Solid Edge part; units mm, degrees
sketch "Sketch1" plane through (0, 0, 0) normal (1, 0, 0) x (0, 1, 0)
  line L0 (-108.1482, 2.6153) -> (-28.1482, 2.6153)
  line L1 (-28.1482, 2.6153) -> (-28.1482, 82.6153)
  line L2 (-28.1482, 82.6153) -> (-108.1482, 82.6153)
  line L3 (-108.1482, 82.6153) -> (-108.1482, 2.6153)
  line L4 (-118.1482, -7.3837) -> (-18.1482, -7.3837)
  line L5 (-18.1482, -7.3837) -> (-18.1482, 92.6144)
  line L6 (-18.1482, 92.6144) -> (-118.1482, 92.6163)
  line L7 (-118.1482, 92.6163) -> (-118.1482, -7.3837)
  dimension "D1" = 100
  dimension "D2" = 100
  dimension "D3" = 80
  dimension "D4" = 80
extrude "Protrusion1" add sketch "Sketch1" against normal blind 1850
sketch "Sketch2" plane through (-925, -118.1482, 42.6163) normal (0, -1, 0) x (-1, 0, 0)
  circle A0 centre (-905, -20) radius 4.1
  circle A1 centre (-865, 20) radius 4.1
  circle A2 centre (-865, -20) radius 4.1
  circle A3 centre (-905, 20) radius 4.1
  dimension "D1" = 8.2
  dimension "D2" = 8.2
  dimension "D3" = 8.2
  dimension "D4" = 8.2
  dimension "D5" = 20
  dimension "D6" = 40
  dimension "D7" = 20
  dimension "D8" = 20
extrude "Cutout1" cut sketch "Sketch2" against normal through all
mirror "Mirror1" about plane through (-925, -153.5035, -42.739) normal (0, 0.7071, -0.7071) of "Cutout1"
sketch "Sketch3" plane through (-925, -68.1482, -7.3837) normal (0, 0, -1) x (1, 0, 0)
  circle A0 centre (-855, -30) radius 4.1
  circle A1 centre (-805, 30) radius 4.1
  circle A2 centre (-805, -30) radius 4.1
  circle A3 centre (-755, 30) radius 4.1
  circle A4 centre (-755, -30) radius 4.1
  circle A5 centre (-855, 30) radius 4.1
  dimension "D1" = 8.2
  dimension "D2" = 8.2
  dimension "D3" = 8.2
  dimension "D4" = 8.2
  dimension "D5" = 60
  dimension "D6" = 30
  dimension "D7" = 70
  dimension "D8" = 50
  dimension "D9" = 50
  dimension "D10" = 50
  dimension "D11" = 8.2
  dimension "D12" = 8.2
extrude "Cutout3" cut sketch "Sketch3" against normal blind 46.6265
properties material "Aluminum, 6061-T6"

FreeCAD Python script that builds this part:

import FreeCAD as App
import Part
import Sketcher

V = App.Vector
Q = App.Units.Quantity

doc = App.newDocument("Part")
body = doc.addObject("PartDesign::Body", "Body")

# Sketch on YZ plane
sketch1 = body.newObject("Sketcher::SketchObject", "Sketch")
sketch1.AttachmentSupport = (doc.getObject("YZ_Plane"), [""])
sketch1.MapMode = "FlatFace"
sketch1.addGeometry([
    Part.LineSegment(V(-118.1482, 92.6163, 0), V(-118.1482, -7.3837, 0)),  # 0
    Part.LineSegment(V(-118.1482, -7.3837, 0), V(-18.1482, -7.3837, 0)),  # 1
    Part.LineSegment(V(-18.1482, -7.3837, 0), V(-18.1482, 92.6144, 0)),  # 2
    Part.LineSegment(V(-18.1482, 92.6144, 0), V(-118.1482, 92.6163, 0)),  # 3
    Part.LineSegment(V(-28.1482, 2.6153, 0), V(-108.1482, 2.6153, 0)),  # 4
    Part.LineSegment(V(-108.1482, 2.6153, 0), V(-108.1482, 82.6153, 0)),  # 5
    Part.LineSegment(V(-108.1482, 82.6153, 0), V(-28.1482, 82.6153, 0)),  # 6
    Part.LineSegment(V(-28.1482, 82.6153, 0), V(-28.1482, 2.6153, 0)),  # 7
], False)
sketch1.addConstraint([
    Sketcher.Constraint("Coincident", 0, 2, 1, 1),
    Sketcher.Constraint("Coincident", 1, 2, 2, 1),
    Sketcher.Constraint("Coincident", 2, 2, 3, 1),
    Sketcher.Constraint("Coincident", 3, 2, 0, 1),
    Sketcher.Constraint("Coincident", 4, 2, 5, 1),
    Sketcher.Constraint("Coincident", 5, 2, 6, 1),
    Sketcher.Constraint("Coincident", 6, 2, 7, 1),
    Sketcher.Constraint("Coincident", 7, 2, 4, 1),
    Sketcher.Constraint("Vertical", 0),
    Sketcher.Constraint("Horizontal", 1),
    Sketcher.Constraint("Vertical", 2),
    Sketcher.Constraint("Horizontal", 4),
    Sketcher.Constraint("Vertical", 5),
    Sketcher.Constraint("Horizontal", 6),
    Sketcher.Constraint("Vertical", 7),
    Sketcher.Constraint("Equal", 1, 0),
    Sketcher.Constraint("Equal", 6, 5),
    Sketcher.Constraint("DistanceX", 1, 1, 1, 2, Q("100 mm")),
    Sketcher.Constraint("DistanceX", 4, 2, 4, 1, Q("80 mm")),
    Sketcher.Constraint("Angle", 3, Q("179.999 deg")),
    Sketcher.Constraint("DistanceX", 0, 2, 4, 2, Q("10 mm")),
    Sketcher.Constraint("DistanceX", 4, 2, -1, 1, Q("108.1482 mm")),
    Sketcher.Constraint("DistanceY", 0, 2, 4, 2, Q("9.999 mm")),
    Sketcher.Constraint("DistanceY", 0, 2, -1, 1, Q("7.3837 mm")),
])
pad1 = body.newObject("PartDesign::Pad", "Pad")
pad1.Profile = sketch1
pad1.Length = 1850
pad1.Reversed = True

# Sketch on XZ plane
sketch2 = body.newObject("Sketcher::SketchObject", "Sketch001")
sketch2.AttachmentSupport = (doc.getObject("XZ_Plane"), [""])
sketch2.MapMode = "FlatFace"
sketch2.AttachmentOffset = App.Placement(V(0, 0, 118.1482), App.Rotation())
sketch2.addGeometry([
    Part.Circle(V(-20, 62.6163, 0), V(0, 0, 1), 4.1),
    Part.Circle(V(-60, 22.6163, 0), V(0, 0, 1), 4.1),
    Part.Circle(V(-60, 62.6163, 0), V(0, 0, 1), 4.1),
    Part.Circle(V(-20, 22.6163, 0), V(0, 0, 1), 4.1),
], False)
sketch2.addConstraint([
    Sketcher.Constraint("Equal", 0, 1),
    Sketcher.Constraint("Equal", 1, 2),
    Sketcher.Constraint("Equal", 2, 3),
    Sketcher.Constraint("Horizontal", 0, 3, 2, 3),
    Sketcher.Constraint("Horizontal", 1, 3, 3, 3),
    Sketcher.Constraint("Vertical", 1, 3, 2, 3),
    Sketcher.Constraint("Vertical", 0, 3, 3, 3),
    Sketcher.Constraint("Diameter", 0, Q("8.2 mm")),
    Sketcher.Constraint("DistanceX", 0, 3, -1, 1, Q("20 mm")),
    Sketcher.Constraint("DistanceX", 1, 3, -1, 1, Q("60 mm")),
    Sketcher.Constraint("DistanceY", 1, 3, 0, 3, Q("40 mm")),
    Sketcher.Constraint("DistanceY", -1, 1, 0, 3, Q("62.6163 mm")),
])
pocket1 = body.newObject("PartDesign::Pocket", "Pocket")
pocket1.Profile = sketch2
pocket1.Type = "ThroughAll"
doc.recompute()

datumplane = body.newObject("PartDesign::Plane", "DatumPlane")
datumplane.Placement = App.Placement(V(0, -55.38225, 55.38225), App.Rotation(V(0, 0.707106781, 0.707106781), V(-1, 0, 0), V(0, -0.707106781, 0.707106781), "ZXY"))
mirrored = body.newObject("PartDesign::Mirrored", "Mirrored")
mirrored.Originals = [pocket1]
mirrored.MirrorPlane = (datumplane, [""])
body.Tip = mirrored

# Sketch on XY plane
sketch3 = body.newObject("Sketcher::SketchObject", "Sketch002")
sketch3.AttachmentSupport = (doc.getObject("XY_Plane"), [""])
sketch3.MapMode = "FlatFace"
sketch3.AttachmentOffset = App.Placement(V(0, 0, -7.3837), App.Rotation())
sketch3.addGeometry([
    Part.Circle(V(-1780, -38.1482, 0), V(0, 0, 1), 4.1),  # 0
    Part.Circle(V(-1730, -98.1482, 0), V(0, 0, 1), 4.1),  # 1
    Part.Circle(V(-1730, -38.1482, 0), V(0, 0, 1), 4.1),  # 2
    Part.Circle(V(-1680, -98.1482, 0), V(0, 0, 1), 4.1),  # 3
    Part.Circle(V(-1680, -38.1482, 0), V(0, 0, 1), 4.1),  # 4
    Part.Circle(V(-1780, -98.1482, 0), V(0, 0, 1), 4.1),  # 5
], False)
sketch3.addConstraint([
    Sketcher.Constraint("Equal", 0, 1),
    Sketcher.Constraint("Equal", 1, 2),
    Sketcher.Constraint("Equal", 2, 3),
    Sketcher.Constraint("Equal", 3, 4),
    Sketcher.Constraint("Equal", 4, 5),
    Sketcher.Constraint("Horizontal", 0, 3, 2, 3),
    Sketcher.Constraint("Horizontal", 1, 3, 3, 3),
    Sketcher.Constraint("Horizontal", 2, 3, 4, 3),
    Sketcher.Constraint("Horizontal", 3, 3, 5, 3),
    Sketcher.Constraint("Vertical", 1, 3, 2, 3),
    Sketcher.Constraint("Vertical", 3, 3, 4, 3),
    Sketcher.Constraint("Vertical", 0, 3, 5, 3),
    Sketcher.Constraint("Diameter", 0, Q("8.2 mm")),
    Sketcher.Constraint("DistanceX", 0, 3, -1, 1, Q("1780 mm")),
    Sketcher.Constraint("DistanceX", 1, 3, -1, 1, Q("1730 mm")),
    Sketcher.Constraint("DistanceX", 3, 3, -1, 1, Q("1680 mm")),
    Sketcher.Constraint("DistanceY", 1, 3, 0, 3, Q("60 mm")),
    Sketcher.Constraint("DistanceY", 0, 3, -1, 1, Q("38.1482 mm")),
])
pocket2 = body.newObject("PartDesign::Pocket", "Pocket001")
pocket2.Profile = sketch3
pocket2.Length = 46.6265
pocket2.Reversed = True

doc.recompute()
